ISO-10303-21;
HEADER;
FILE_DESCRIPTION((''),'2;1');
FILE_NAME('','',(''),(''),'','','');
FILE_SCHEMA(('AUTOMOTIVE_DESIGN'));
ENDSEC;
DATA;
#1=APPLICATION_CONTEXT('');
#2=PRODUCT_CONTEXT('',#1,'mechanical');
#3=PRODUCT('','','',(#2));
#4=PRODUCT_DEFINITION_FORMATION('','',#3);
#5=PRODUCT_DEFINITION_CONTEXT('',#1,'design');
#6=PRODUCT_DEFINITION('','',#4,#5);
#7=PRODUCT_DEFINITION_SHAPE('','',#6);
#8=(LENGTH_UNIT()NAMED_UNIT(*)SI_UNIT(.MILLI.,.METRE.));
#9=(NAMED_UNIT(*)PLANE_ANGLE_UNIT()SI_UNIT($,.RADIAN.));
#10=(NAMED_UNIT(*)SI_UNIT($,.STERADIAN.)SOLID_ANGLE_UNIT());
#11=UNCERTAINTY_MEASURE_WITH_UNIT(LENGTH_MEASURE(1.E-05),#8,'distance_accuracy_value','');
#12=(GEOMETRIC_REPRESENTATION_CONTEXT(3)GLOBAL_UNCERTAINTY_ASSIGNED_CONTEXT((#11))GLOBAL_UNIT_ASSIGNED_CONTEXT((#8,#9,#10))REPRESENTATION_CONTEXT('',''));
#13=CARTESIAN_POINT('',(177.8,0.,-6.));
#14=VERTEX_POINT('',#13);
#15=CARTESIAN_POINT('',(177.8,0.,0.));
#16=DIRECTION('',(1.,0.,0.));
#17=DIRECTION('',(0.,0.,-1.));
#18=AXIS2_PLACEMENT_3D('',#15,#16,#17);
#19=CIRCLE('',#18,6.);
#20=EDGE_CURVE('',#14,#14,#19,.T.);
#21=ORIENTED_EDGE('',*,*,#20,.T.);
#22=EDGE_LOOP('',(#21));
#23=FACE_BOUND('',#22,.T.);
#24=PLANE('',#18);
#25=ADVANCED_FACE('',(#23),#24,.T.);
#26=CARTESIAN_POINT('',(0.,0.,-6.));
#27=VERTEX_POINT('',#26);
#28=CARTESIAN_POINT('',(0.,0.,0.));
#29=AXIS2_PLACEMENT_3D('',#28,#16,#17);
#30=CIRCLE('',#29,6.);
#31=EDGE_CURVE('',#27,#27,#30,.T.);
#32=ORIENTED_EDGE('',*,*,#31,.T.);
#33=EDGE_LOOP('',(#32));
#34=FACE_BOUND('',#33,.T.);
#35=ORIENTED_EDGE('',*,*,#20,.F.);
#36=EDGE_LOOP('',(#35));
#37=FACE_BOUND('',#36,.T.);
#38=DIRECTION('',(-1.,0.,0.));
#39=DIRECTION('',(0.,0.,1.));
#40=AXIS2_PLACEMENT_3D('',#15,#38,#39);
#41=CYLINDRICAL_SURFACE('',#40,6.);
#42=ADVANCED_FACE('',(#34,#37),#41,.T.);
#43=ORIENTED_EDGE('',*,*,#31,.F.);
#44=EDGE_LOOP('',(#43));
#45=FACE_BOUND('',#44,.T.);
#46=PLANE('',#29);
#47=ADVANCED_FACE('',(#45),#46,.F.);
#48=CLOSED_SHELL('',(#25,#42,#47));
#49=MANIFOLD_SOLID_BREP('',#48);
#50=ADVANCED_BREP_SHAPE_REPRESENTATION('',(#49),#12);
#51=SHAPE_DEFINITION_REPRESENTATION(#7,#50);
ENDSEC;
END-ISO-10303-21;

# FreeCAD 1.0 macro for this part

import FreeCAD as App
import Part
import Sketcher
from FreeCAD import Vector

doc = App.newDocument("Part")
body = doc.addObject("PartDesign::Body", "Body")

# Sketch on YZ plane
sketch1 = doc.addObject("Sketcher::SketchObject", "Sketch")
body.addObject(sketch1)
sketch1.AttachmentSupport = (doc.YZ_Plane, [""])
sketch1.MapMode = "FlatFace"
sketch1.addGeometry(Part.Circle(Vector(0, 0, 0), Vector(0, 0, 1), 6), False)
sketch1.addConstraint(Sketcher.Constraint("Coincident", 0, 3, -1, 1))
sketch1.addConstraint(Sketcher.Constraint("Diameter", 0, 12.0))
pad1 = doc.addObject("PartDesign::Pad", "Pad")
body.addObject(pad1)
pad1.Profile = sketch1
pad1.Length = 177.8

doc.recompute()
